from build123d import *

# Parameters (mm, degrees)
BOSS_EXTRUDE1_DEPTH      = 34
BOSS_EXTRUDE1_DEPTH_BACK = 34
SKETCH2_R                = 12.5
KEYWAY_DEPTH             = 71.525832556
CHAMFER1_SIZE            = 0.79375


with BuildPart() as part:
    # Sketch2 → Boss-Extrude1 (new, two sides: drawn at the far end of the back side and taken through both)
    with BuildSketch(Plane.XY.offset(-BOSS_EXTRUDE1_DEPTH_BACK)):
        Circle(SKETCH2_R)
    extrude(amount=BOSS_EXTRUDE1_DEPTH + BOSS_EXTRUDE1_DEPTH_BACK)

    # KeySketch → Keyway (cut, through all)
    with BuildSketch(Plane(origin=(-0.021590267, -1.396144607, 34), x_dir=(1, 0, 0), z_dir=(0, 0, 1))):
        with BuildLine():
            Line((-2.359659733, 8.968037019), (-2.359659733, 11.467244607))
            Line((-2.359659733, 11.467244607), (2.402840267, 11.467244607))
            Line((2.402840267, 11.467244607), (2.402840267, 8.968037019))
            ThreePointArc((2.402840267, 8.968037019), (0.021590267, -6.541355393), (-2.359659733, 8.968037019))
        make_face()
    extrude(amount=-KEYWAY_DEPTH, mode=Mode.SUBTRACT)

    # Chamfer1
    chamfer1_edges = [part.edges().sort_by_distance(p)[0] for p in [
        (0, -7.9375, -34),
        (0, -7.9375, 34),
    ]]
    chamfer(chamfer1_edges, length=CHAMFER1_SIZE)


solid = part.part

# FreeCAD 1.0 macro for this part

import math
import FreeCAD as App
import Part
import Sketcher
Q = App.Units.Quantity


def edges_at(feature, points):
    """Names of the edges that pass closest to the given points."""
    edges = feature.Shape.Edges
    near = lambda p: min(range(len(edges)), key=lambda i: edges[i].distToShape(Part.Vertex(*p))[0])
    return sorted({f"Edge{near(p) + 1}" for p in points})

doc = App.newDocument("Part")
body = doc.addObject("PartDesign::Body", "Body")

sketch1 = body.newObject("Sketcher::SketchObject", "Sketch")
sketch1.AttachmentSupport = (doc.getObject("XY_Plane"), [""])
sketch1.MapMode = "FlatFace"
sketch1.addGeometry(Part.Circle(App.Vector(0, 0, 0), App.Vector(0, 0, 1), 12), False)
sketch1.addConstraint(Sketcher.Constraint("Coincident", 0, 3, -1, 1))
sketch1.addConstraint(Sketcher.Constraint("Diameter", 0, 25.0))
pad1 = body.newObject("PartDesign::Pad", "Pad")
pad1.Profile = sketch1
pad1.Type = "TwoLengths"
pad1.Length = 34
pad1.Length2 = 34

sketch2 = body.newObject("Sketcher::SketchObject", "Sketch001")
sketch2.AttachmentSupport = (doc.getObject("XY_Plane"), [""])
sketch2.MapMode = "FlatFace"
sketch2.AttachmentOffset = App.Placement(App.Vector(0, 0, 34), App.Rotation())
sketch2.addGeometry(Part.LineSegment(App.Vector(-2.4, 10.1, 0), App.Vector(-2.4, 7.6, 0)), False)
sketch2.addGeometry(Part.ArcOfCircle(Part.Circle(App.Vector(0, 0, 0), App.Vector(0, 0, 1), 7.9), math.radians(107), math.radians(433)), False)
sketch2.addGeometry(Part.LineSegment(App.Vector(2.4, 7.6, 0), App.Vector(2.4, 10.1, 0)), False)
sketch2.addGeometry(Part.LineSegment(App.Vector(2.4, 10.1, 0), App.Vector(-2.4, 10.1, 0)), False)
sketch2.addConstraint(Sketcher.Constraint("Coincident", 0, 2, 1, 1))
sketch2.addConstraint(Sketcher.Constraint("Coincident", 1, 2, 2, 1))
sketch2.addConstraint(Sketcher.Constraint("Coincident", 2, 2, 3, 1))
sketch2.addConstraint(Sketcher.Constraint("Coincident", 3, 2, 0, 1))
sketch2.addConstraint(Sketcher.Constraint("Vertical", 0))
sketch2.addConstraint(Sketcher.Constraint("Vertical", 2))
sketch2.addConstraint(Sketcher.Constraint("Horizontal", 3))
sketch2.addConstraint(Sketcher.Constraint("Coincident", 1, 3, -1, 1))
sketch2.addConstraint(Sketcher.Constraint("Horizontal", 0, 2, 1, 2))
sketch2.addConstraint(Sketcher.Constraint("Radius", 1, Q("0.3125 in")))
sketch2.addConstraint(Sketcher.Constraint("DistanceX", 3, 2, 3, 1, Q("0.1875 in")))
sketch2.addConstraint(Sketcher.Constraint("DistanceY", -1, 1, 2, 2, Q("0.3965 in")))
pocket1 = body.newObject("PartDesign::Pocket", "Pocket")
pocket1.Profile = sketch2
pocket1.Type = "ThroughAll"
doc.recompute()

chamfer = body.newObject("PartDesign::Chamfer", "Chamfer")
chamfer.Base = (pocket1, edges_at(pocket1, [(0, -7.938, -34), (0, -7.938, 34)]))
chamfer.Size = Q("0.03125 in")

doc.recompute()
